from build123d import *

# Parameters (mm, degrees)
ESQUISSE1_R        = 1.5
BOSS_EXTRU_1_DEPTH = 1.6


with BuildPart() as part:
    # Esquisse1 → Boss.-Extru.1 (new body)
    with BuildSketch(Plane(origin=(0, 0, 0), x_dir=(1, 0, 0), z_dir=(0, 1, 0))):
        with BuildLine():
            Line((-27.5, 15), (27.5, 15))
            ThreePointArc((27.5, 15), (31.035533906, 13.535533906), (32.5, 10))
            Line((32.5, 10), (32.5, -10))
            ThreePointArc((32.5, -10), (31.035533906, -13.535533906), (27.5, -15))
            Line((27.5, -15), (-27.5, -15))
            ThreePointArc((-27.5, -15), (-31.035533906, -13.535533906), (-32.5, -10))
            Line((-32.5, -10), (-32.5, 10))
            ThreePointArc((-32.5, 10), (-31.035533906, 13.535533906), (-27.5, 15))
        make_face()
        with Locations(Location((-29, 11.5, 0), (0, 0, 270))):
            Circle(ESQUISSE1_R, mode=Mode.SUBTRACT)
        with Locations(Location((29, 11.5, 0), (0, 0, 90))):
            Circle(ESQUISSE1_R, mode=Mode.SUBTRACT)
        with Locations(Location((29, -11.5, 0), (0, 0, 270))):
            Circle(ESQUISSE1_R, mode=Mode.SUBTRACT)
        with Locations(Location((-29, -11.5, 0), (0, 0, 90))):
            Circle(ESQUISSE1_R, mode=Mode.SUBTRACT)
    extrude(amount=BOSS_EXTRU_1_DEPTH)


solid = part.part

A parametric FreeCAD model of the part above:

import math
import FreeCAD as App
import Part
import Sketcher
from FreeCAD import Vector
Q = App.Units.Quantity

doc = App.newDocument("Part")
body = doc.addObject("PartDesign::Body", "Body")

sketch1 = doc.addObject("Sketcher::SketchObject", "Sketch")
body.addObject(sketch1)
sketch1.AttachmentSupport = (doc.XZ_Plane, [""])
sketch1.MapMode = "FlatFace"
sketch1.addGeometry(Part.LineSegment(Vector(27.5, -15, 0), Vector(-27.5, -15, 0)), False)
sketch1.addGeometry(Part.ArcOfCircle(Part.Circle(Vector(-27.5, -10, 0), Vector(0, 0, 1), 5), math.radians(180), math.radians(270)), False)
sketch1.addGeometry(Part.LineSegment(Vector(-32.5, -10, 0), Vector(-32.5, 10, 0)), False)
sketch1.addGeometry(Part.ArcOfCircle(Part.Circle(Vector(-27.5, 10, 0), Vector(0, 0, 1), 5), math.radians(90), math.radians(180)), False)
sketch1.addGeometry(Part.LineSegment(Vector(-27.5, 15, 0), Vector(27.5, 15, 0)), False)
sketch1.addGeometry(Part.ArcOfCircle(Part.Circle(Vector(27.5, 10, 0), Vector(0, 0, 1), 5), math.radians(0), math.radians(90)), False)
sketch1.addGeometry(Part.LineSegment(Vector(32.5, 10, 0), Vector(32.5, -10, 0)), False)
sketch1.addGeometry(Part.ArcOfCircle(Part.Circle(Vector(27.5, -10, 0), Vector(0, 0, 1), 5), math.radians(-90), math.radians(0)), False)
sketch1.addGeometry(Part.Circle(Vector(29, 11.5, 0), Vector(0, 0, 1), 1.5), False)
sketch1.addGeometry(Part.Circle(Vector(-29, 11.5, 0), Vector(0, 0, 1), 1.5), False)
sketch1.addGeometry(Part.Circle(Vector(29, -11.5, 0), Vector(0, 0, 1), 1.5), False)
sketch1.addGeometry(Part.Circle(Vector(-29, -11.5, 0), Vector(0, 0, 1), 1.5), False)
sketch1.addConstraint(Sketcher.Constraint("Tangent", 0, 2, 1, 2))
sketch1.addConstraint(Sketcher.Constraint("Tangent", 1, 1, 2, 1))
sketch1.addConstraint(Sketcher.Constraint("Tangent", 2, 2, 3, 2))
sketch1.addConstraint(Sketcher.Constraint("Tangent", 3, 1, 4, 1))
sketch1.addConstraint(Sketcher.Constraint("Tangent", 4, 2, 5, 2))
sketch1.addConstraint(Sketcher.Constraint("Tangent", 5, 1, 6, 1))
sketch1.addConstraint(Sketcher.Constraint("Tangent", 6, 2, 7, 2))
sketch1.addConstraint(Sketcher.Constraint("Tangent", 7, 1, 0, 1))
sketch1.addConstraint(Sketcher.Constraint("Horizontal", 0))
sketch1.addConstraint(Sketcher.Constraint("Vertical", 2))
sketch1.addConstraint(Sketcher.Constraint("Horizontal", 4))
sketch1.addConstraint(Sketcher.Constraint("Vertical", 6))
sketch1.addConstraint(Sketcher.Constraint("Equal", 1, 3))
sketch1.addConstraint(Sketcher.Constraint("Equal", 3, 5))
sketch1.addConstraint(Sketcher.Constraint("Equal", 5, 7))
sketch1.addConstraint(Sketcher.Constraint("Equal", 8, 9))
sketch1.addConstraint(Sketcher.Constraint("Equal", 9, 10))
sketch1.addConstraint(Sketcher.Constraint("Equal", 10, 11))
sketch1.addConstraint(Sketcher.Constraint("Symmetric", 1, 3, 5, 3, -1, 1))
sketch1.addConstraint(Sketcher.Constraint("Symmetric", 9, 3, 10, 3, -1, 1))
sketch1.addConstraint(Sketcher.Constraint("Symmetric", 8, 3, 11, 3, -1, 1))
sketch1.addConstraint(Sketcher.Constraint("Symmetric", 8, 3, 9, 3, -2))
sketch1.addConstraint(Sketcher.Constraint("Diameter", 8, Q("3 mm")))
sketch1.addConstraint(Sketcher.Constraint("Radius", 1, Q("5 mm")))
sketch1.addConstraint(Sketcher.Constraint("DistanceX", 0, 2, 0, 1, Q("55 mm")))
sketch1.addConstraint(Sketcher.Constraint("DistanceY", 2, 1, 2, 2, Q("20 mm")))
sketch1.addConstraint(Sketcher.Constraint("DistanceX", -1, 1, 8, 3, Q("29 mm")))
sketch1.addConstraint(Sketcher.Constraint("DistanceY", 10, 3, 8, 3, Q("23 mm")))
pad1 = doc.addObject("PartDesign::Pad", "Pad")
body.addObject(pad1)
pad1.Profile = sketch1
pad1.Length = 1.6
pad1.Reversed = True

doc.recompute()
